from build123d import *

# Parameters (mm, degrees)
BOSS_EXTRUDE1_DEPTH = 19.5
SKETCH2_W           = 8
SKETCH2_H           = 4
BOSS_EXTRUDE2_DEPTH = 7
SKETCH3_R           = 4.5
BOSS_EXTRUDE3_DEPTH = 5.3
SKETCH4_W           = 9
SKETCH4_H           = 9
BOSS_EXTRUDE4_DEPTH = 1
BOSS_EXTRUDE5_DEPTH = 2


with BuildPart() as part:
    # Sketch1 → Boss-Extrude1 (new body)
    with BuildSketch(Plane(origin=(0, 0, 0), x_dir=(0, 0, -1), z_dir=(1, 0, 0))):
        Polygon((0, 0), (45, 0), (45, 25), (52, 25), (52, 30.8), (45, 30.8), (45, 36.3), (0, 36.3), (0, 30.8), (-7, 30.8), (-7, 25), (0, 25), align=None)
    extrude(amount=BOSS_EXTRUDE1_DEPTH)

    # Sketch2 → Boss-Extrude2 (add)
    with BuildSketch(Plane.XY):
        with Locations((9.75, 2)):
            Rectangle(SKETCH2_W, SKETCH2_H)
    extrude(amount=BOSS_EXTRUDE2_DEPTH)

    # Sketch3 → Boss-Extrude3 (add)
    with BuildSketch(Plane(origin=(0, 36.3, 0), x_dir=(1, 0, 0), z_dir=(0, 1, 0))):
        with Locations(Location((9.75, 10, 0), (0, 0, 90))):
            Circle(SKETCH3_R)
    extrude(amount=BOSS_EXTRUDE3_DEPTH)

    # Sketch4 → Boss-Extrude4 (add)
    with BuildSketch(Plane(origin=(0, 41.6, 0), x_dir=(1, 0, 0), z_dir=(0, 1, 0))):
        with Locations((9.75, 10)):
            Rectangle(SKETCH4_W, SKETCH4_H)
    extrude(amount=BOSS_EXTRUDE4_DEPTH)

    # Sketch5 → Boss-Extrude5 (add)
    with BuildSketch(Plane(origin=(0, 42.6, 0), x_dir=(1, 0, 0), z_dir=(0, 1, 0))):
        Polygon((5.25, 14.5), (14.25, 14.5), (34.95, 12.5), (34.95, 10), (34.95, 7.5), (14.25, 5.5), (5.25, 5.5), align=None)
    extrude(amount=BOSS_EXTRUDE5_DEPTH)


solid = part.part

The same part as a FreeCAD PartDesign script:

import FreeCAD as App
import Part
import Sketcher

V = App.Vector


def add_polygon(sketch, points):
    """Adds a closed chain of lines whose ends are joined by coincident constraints."""
    first, n = sketch.GeometryCount, len(points)
    for a, b in zip(points, points[1:] + points[:1]):
        sketch.addGeometry(Part.LineSegment(App.Vector(*a, 0), App.Vector(*b, 0)), False)
    for i in range(n):
        sketch.addConstraint(Sketcher.Constraint("Coincident", first + i, 2, first + (i + 1) % n, 1))

doc = App.newDocument("Part")
body = doc.addObject("PartDesign::Body", "Body")

# Sketch on YZ plane
sketch1 = body.newObject("Sketcher::SketchObject", "Sketch")
sketch1.AttachmentSupport = (doc.getObject("YZ_Plane"), [""])
sketch1.MapMode = "FlatFace"
add_polygon(sketch1, [(0, 0), (0, -45), (25, -45), (25, -52), (30.8, -52), (30.8, -45), (36.3, -45), (36.3, 0), (30.8, 0), (30.8, 7), (25, 7), (25, 0)])  # lines 0-11
sketch1.addConstraint(Sketcher.Constraint("Vertical", 0))
sketch1.addConstraint(Sketcher.Constraint("Horizontal", 1))
sketch1.addConstraint(Sketcher.Constraint("Vertical", 2))
sketch1.addConstraint(Sketcher.Constraint("Horizontal", 3))
sketch1.addConstraint(Sketcher.Constraint("Vertical", 4))
sketch1.addConstraint(Sketcher.Constraint("Horizontal", 5))
sketch1.addConstraint(Sketcher.Constraint("Vertical", 6))
sketch1.addConstraint(Sketcher.Constraint("Horizontal", 7))
sketch1.addConstraint(Sketcher.Constraint("Vertical", 8))
sketch1.addConstraint(Sketcher.Constraint("Horizontal", 9))
sketch1.addConstraint(Sketcher.Constraint("Vertical", 10))
sketch1.addConstraint(Sketcher.Constraint("Horizontal", 11))
sketch1.addConstraint(Sketcher.Constraint("Coincident", 11, 2, -1, 1))
sketch1.addConstraint(Sketcher.Constraint("PointOnObject", 6, 2, -1))
sketch1.addConstraint(Sketcher.Constraint("Horizontal", 1, 2, 4, 2))
sketch1.addConstraint(Sketcher.Constraint("Vertical", 4, 2, 7, 2))
sketch1.addConstraint(Sketcher.Constraint("Vertical", 2, 2, 9, 2))
sketch1.addConstraint(Sketcher.Constraint("Equal", 4, 8))
sketch1.addConstraint(Sketcher.Constraint("DistanceX", 1, 1, 1, 2, 25.0))
sketch1.addConstraint(Sketcher.Constraint("DistanceY", 0, 2, 0, 1, 45.0))
sketch1.addConstraint(Sketcher.Constraint("DistanceY", 2, 2, 2, 1, 7.0))
sketch1.addConstraint(Sketcher.Constraint("DistanceX", 3, 1, 3, 2, 5.8))
sketch1.addConstraint(Sketcher.Constraint("DistanceX", 5, 1, 5, 2, 5.5))
pad1 = body.newObject("PartDesign::Pad", "Pad")
pad1.Profile = sketch1
pad1.Length = 19.5

# Sketch on XY plane
sketch2 = body.newObject("Sketcher::SketchObject", "Sketch001")
sketch2.AttachmentSupport = (doc.getObject("XY_Plane"), [""])
sketch2.MapMode = "FlatFace"
add_polygon(sketch2, [(5.75, 4), (5.75, 0), (13.75, 0), (13.75, 4)])  # lines 0-3
sketch2.addConstraint(Sketcher.Constraint("Vertical", 0))
sketch2.addConstraint(Sketcher.Constraint("Horizontal", 1))
sketch2.addConstraint(Sketcher.Constraint("Vertical", 2))
sketch2.addConstraint(Sketcher.Constraint("Horizontal", 3))
sketch2.addConstraint(Sketcher.Constraint("PointOnObject", 0, 2, -1))
sketch2.addConstraint(Sketcher.Constraint("DistanceX", 1, 1, 1, 2, 8.0))
sketch2.addConstraint(Sketcher.Constraint("DistanceY", 0, 2, 0, 1, 4.0))
sketch2.addConstraint(Sketcher.Constraint("DistanceX", -1, 1, 0, 2, 5.75))
pad2 = body.newObject("PartDesign::Pad", "Pad001")
pad2.Profile = sketch2
pad2.Length = 7

# Sketch on XZ plane
sketch3 = body.newObject("Sketcher::SketchObject", "Sketch002")
sketch3.AttachmentSupport = (doc.getObject("XZ_Plane"), [""])
sketch3.MapMode = "FlatFace"
sketch3.AttachmentOffset = App.Placement(V(0, 0, -36.3), App.Rotation())
sketch3.addGeometry(Part.Circle(V(9.75, -10, 0), V(0, 0, 1), 4.5), False)
sketch3.addConstraint(Sketcher.Constraint("Diameter", 0, 9.0))
sketch3.addConstraint(Sketcher.Constraint("DistanceY", 0, 3, -1, 1, 10.0))
sketch3.addConstraint(Sketcher.Constraint("DistanceX", -1, 1, 0, 3, 9.75))
pad3 = body.newObject("PartDesign::Pad", "Pad002")
pad3.Profile = sketch3
pad3.Length = 5.3
pad3.Reversed = True

# Sketch on XZ plane
sketch4 = body.newObject("Sketcher::SketchObject", "Sketch003")
sketch4.AttachmentSupport = (doc.getObject("XZ_Plane"), [""])
sketch4.MapMode = "FlatFace"
sketch4.AttachmentOffset = App.Placement(V(0, 0, -41.6), App.Rotation())
add_polygon(sketch4, [(5.25, -14.5), (5.25, -5.5), (14.25, -5.5), (14.25, -14.5)])  # lines 0-3
sketch4.addConstraint(Sketcher.Constraint("Vertical", 0))
sketch4.addConstraint(Sketcher.Constraint("Horizontal", 1))
sketch4.addConstraint(Sketcher.Constraint("Vertical", 2))
sketch4.addConstraint(Sketcher.Constraint("Horizontal", 3))
sketch4.addConstraint(Sketcher.Constraint("Equal", 3, 0))
sketch4.addConstraint(Sketcher.Constraint("DistanceX", 1, 1, 1, 2, 9.0))
sketch4.addConstraint(Sketcher.Constraint("DistanceY", 0, 2, -1, 1, 5.5))
sketch4.addConstraint(Sketcher.Constraint("DistanceX", -1, 1, 0, 2, 5.25))
pad4 = body.newObject("PartDesign::Pad", "Pad003")
pad4.Profile = sketch4
pad4.Length = 1
pad4.Reversed = True

# Sketch on XZ plane
sketch5 = body.newObject("Sketcher::SketchObject", "Sketch004")
sketch5.AttachmentSupport = (doc.getObject("XZ_Plane"), [""])
sketch5.MapMode = "FlatFace"
sketch5.AttachmentOffset = App.Placement(V(0, 0, -42.6), App.Rotation())
add_polygon(sketch5, [(14.25, -14.5), (5.25, -14.5), (5.25, -5.5), (14.25, -5.5), (34.95, -7.5), (34.95, -12.5)])  # lines 0-5
sketch5.addConstraint(Sketcher.Constraint("Horizontal", 0))
sketch5.addConstraint(Sketcher.Constraint("Vertical", 1))
sketch5.addConstraint(Sketcher.Constraint("Horizontal", 2))
sketch5.addConstraint(Sketcher.Constraint("Vertical", 4))
sketch5.addConstraint(Sketcher.Constraint("Vertical", 2, 2, 5, 2))
sketch5.addConstraint(Sketcher.Constraint("Equal", 2, 1))
sketch5.addConstraint(Sketcher.Constraint("Equal", 3, 5))
sketch5.addConstraint(Sketcher.Constraint("DistanceX", 0, 2, 0, 1, 9.0))
sketch5.addConstraint(Sketcher.Constraint("DistanceY", 4, 2, 4, 1, 5.0))
sketch5.addConstraint(Sketcher.Constraint("DistanceY", 0, 2, -1, 1, 14.5))
sketch5.addConstraint(Sketcher.Constraint("DistanceX", 2, 2, 3, 2, 20.7))
sketch5.addConstraint(Sketcher.Constraint("DistanceX", -1, 1, 0, 2, 5.25))
pad5 = body.newObject("PartDesign::Pad", "Pad004")
pad5.Profile = sketch5
pad5.Length = 2
pad5.Reversed = True

doc.recompute()
